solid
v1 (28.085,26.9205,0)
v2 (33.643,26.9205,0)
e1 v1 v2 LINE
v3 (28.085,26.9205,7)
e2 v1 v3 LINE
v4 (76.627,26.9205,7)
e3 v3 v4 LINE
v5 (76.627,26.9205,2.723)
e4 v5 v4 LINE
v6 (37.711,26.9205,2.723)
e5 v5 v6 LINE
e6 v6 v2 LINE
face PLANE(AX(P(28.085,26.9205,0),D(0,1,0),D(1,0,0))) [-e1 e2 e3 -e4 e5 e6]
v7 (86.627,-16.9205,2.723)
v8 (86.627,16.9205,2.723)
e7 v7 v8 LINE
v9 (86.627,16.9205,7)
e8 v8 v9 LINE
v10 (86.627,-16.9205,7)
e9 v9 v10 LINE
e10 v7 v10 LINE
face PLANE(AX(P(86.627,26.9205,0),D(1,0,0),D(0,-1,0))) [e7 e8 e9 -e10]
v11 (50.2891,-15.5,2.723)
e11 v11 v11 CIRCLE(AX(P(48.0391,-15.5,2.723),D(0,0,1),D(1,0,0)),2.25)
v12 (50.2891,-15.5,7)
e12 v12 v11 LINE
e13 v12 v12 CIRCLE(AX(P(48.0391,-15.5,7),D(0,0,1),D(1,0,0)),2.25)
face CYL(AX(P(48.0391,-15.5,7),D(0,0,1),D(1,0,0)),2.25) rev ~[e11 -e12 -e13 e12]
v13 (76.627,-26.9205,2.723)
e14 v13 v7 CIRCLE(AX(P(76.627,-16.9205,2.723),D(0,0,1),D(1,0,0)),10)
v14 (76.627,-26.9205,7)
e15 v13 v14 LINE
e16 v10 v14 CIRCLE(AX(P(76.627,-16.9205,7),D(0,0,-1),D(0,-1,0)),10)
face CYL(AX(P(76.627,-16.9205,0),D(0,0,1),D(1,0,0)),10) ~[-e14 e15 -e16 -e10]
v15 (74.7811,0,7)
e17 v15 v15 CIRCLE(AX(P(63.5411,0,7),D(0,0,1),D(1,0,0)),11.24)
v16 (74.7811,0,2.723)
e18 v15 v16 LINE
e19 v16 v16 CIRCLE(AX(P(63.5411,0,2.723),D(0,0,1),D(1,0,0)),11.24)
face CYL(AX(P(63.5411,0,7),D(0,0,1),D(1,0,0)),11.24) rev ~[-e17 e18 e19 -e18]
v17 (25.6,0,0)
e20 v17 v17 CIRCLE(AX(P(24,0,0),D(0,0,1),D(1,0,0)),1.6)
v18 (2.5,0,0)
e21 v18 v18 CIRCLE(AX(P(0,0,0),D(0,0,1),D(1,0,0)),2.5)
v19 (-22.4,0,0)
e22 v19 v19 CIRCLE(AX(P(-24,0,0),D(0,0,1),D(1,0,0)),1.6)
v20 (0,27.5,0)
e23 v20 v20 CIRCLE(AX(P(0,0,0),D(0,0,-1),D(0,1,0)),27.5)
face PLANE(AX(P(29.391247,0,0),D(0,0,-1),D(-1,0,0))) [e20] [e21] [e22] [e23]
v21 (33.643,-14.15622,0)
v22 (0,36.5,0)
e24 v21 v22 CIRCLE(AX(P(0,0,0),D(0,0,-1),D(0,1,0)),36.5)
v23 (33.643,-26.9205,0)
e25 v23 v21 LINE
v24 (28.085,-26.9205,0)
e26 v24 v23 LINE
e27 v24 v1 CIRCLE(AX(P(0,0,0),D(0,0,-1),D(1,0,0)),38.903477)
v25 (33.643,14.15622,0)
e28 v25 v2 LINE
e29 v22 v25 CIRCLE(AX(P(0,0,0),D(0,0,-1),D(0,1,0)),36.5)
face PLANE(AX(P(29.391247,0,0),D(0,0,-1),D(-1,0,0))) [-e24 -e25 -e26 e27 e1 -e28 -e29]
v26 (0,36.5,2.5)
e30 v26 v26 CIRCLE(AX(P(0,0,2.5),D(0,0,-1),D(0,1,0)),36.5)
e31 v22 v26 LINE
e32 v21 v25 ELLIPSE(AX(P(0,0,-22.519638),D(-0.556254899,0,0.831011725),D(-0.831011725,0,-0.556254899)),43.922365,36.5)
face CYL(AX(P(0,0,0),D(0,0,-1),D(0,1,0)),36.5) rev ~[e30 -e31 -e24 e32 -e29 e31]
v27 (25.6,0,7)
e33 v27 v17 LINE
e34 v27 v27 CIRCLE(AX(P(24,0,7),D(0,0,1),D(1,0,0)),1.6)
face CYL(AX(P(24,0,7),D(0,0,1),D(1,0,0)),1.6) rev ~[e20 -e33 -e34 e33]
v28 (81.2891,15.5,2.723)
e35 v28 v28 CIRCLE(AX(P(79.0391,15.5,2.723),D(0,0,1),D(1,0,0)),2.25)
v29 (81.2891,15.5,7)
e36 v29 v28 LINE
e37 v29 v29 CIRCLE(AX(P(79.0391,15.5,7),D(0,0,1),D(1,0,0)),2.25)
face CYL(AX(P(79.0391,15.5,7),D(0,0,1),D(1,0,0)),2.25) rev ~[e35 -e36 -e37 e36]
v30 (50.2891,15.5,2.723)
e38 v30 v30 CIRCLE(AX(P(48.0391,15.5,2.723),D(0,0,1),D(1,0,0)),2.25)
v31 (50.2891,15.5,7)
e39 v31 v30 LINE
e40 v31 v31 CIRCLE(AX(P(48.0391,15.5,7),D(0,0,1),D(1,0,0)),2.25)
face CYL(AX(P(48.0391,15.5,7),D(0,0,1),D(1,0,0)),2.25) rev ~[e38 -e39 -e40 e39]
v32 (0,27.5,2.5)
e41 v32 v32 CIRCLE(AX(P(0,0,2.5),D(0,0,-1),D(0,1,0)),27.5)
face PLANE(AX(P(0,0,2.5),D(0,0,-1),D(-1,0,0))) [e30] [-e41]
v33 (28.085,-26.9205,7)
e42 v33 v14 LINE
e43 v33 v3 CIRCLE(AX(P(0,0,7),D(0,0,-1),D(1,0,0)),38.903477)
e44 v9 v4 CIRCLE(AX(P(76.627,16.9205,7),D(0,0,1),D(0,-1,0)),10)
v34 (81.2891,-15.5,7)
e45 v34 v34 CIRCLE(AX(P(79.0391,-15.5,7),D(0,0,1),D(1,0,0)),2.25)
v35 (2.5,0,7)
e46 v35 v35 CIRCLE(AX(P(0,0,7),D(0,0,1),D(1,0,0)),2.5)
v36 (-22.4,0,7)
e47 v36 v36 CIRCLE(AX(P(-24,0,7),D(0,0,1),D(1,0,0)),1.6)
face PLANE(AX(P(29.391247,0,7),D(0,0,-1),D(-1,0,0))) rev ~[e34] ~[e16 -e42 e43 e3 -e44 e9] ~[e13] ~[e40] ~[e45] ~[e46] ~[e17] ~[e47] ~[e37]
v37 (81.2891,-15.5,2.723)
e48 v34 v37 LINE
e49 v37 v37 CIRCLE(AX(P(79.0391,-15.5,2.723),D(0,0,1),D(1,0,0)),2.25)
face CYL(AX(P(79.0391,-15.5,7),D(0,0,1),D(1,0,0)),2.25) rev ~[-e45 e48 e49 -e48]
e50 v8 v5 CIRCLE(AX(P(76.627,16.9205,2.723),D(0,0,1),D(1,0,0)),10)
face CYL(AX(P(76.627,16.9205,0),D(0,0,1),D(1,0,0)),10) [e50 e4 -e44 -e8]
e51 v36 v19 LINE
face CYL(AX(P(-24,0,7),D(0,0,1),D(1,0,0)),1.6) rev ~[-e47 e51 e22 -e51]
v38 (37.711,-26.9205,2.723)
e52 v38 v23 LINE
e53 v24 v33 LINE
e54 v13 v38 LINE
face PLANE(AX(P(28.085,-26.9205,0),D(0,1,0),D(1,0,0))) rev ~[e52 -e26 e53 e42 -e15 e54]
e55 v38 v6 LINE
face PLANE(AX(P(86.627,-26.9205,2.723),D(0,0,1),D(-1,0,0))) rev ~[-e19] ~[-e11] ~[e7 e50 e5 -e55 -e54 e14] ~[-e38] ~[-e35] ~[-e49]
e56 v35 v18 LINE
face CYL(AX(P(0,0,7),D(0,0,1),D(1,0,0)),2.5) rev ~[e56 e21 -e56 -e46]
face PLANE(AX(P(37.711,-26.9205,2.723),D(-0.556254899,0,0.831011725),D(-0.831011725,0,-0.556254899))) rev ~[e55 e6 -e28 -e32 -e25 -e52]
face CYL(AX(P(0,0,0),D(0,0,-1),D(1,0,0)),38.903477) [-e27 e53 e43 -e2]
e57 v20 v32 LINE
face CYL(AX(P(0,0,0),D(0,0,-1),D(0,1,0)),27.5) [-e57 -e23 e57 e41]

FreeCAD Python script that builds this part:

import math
import FreeCAD as App
import Part
import Sketcher

V = App.Vector
Q = App.Units.Quantity


def edges_at(feature, points):
    """Names of the edges that pass closest to the given points."""
    edges = feature.Shape.Edges
    near = lambda p: min(range(len(edges)), key=lambda i: edges[i].distToShape(Part.Vertex(*p))[0])
    return sorted({f"Edge{near(p) + 1}" for p in points})

doc = App.newDocument("Part")
params = doc.addObject("Spreadsheet::Sheet", "Params")
for row, (alias, value) in enumerate([
    ("pad1_length", "7 mm"),
    ("fillet_radius", "10 mm"),
    ("sketch2_diameter", "5 mm"),
    ("sketch2_diameter2", "3.2 mm"),
    ("sketch2_diameter3", "4.5 mm"),
    ("sketch2_diameter4", "22.48 mm"),
    ("sketch4_diameter", "73 mm"),
    ("sketch4_diameter2", "55 mm"),
    ("pocket3_length", "2.5 mm"),
], start=1):
    params.set(f"A{row}", alias)
    params.set(f"B{row}", "=" + value)
    params.setAlias(f"B{row}", alias)

body = doc.addObject("PartDesign::Body", "Body")

# Sketch on XY plane
sketch1 = body.newObject("Sketcher::SketchObject", "Sketch")
sketch1.AttachmentSupport = (doc.getObject("XY_Plane"), [""])
sketch1.MapMode = "FlatFace"
sketch1.addGeometry([
    Part.LineSegment(V(87, -27, 0), V(87, 27, 0)),
    Part.LineSegment(V(87, 27, 0), V(28, 27, 0)),
    Part.ArcOfCircle(Part.Circle(V(0, 0, 0), V(0, 0, 1), 39), math.radians(44), math.radians(316)),
    Part.LineSegment(V(28, -27, 0), V(87, -27, 0)),
], False)
sketch1.addConstraint([
    Sketcher.Constraint("Coincident", 0, 2, 1, 1),
    Sketcher.Constraint("Coincident", 1, 2, 2, 1),
    Sketcher.Constraint("Coincident", 2, 2, 3, 1),
    Sketcher.Constraint("Coincident", 3, 2, 0, 1),
    Sketcher.Constraint("Vertical", 0),
    Sketcher.Constraint("Horizontal", 1),
    Sketcher.Constraint("Horizontal", 3),
    Sketcher.Constraint("Coincident", 2, 3, -1, 1),
    Sketcher.Constraint("Vertical", 1, 2, 2, 2),
    Sketcher.Constraint("Radius", 2, Q("38.9035 mm")),
    Sketcher.Constraint("DistanceX", 1, 2, 1, 1, Q("58.542 mm")),
    Sketcher.Constraint("DistanceY", 0, 1, 0, 2, Q("53.841 mm")),
])
pad1 = body.newObject("PartDesign::Pad", "Pad")
pad1.Profile = sketch1
pad1.setExpression("Length", "Params.pad1_length")
doc.recompute()

fillet = body.newObject("PartDesign::Fillet", "Fillet")
fillet.Base = (pad1, edges_at(pad1, [(86.627, 26.921, 3.5), (86.627, -26.921, 3.5)]))
fillet.setExpression("Radius", "Params.fillet_radius")

# Sketch on XY plane
sketch2 = body.newObject("Sketcher::SketchObject", "Sketch001")
sketch2.AttachmentSupport = (doc.getObject("XY_Plane"), [""])
sketch2.MapMode = "FlatFace"
sketch2.AttachmentOffset = App.Placement(V(0, 0, 7), App.Rotation())
sketch2.addGeometry([
    Part.Circle(V(-24, 0, 0), V(0, 0, 1), 1.6),  # 0
    Part.Circle(V(0, 0, 0), V(0, 0, 1), 2.5),  # 1
    Part.Circle(V(24, 0, 0), V(0, 0, 1), 1.6),  # 2
    Part.Circle(V(48, 15.5, 0), V(0, 0, 1), 2.2),  # 3
    Part.Circle(V(48, -15.5, 0), V(0, 0, 1), 2.2),  # 4
    Part.Circle(V(63.5, 0, 0), V(0, 0, 1), 11.2),  # 5
    Part.Circle(V(79, -15.5, 0), V(0, 0, 1), 2.2),  # 6
    Part.Circle(V(79, 15.5, 0), V(0, 0, 1), 2.2),  # 7
], False)
sketch2.addConstraint([
    Sketcher.Constraint("Coincident", 1, 3, -1, 1),
    Sketcher.Constraint("Equal", 0, 2),
    Sketcher.Constraint("Equal", 3, 4),
    Sketcher.Constraint("Equal", 4, 6),
    Sketcher.Constraint("Equal", 6, 7),
    Sketcher.Constraint("Symmetric", 0, 3, 2, 3, -1, 1),
    Sketcher.Constraint("Symmetric", 3, 3, 4, 3, -1),
    Sketcher.Constraint("Symmetric", 6, 3, 7, 3, -1),
    Sketcher.Constraint("PointOnObject", 0, 3, -1),
    Sketcher.Constraint("PointOnObject", 5, 3, -1),
    Sketcher.Constraint("Horizontal", 4, 3, 6, 3),
    Sketcher.Constraint("Diameter", 1, Q("5 mm")),
    Sketcher.Constraint("Diameter", 0, Q("3.2 mm")),
    Sketcher.Constraint("Diameter", 3, Q("4.5 mm")),
    Sketcher.Constraint("Diameter", 5, Q("22.48 mm")),
    Sketcher.Constraint("DistanceX", 0, 3, -1, 1, Q("24 mm")),
    Sketcher.Constraint("DistanceY", 4, 3, 3, 3, Q("31 mm")),
    Sketcher.Constraint("DistanceX", 4, 3, 6, 3, Q("31 mm")),
    Sketcher.Constraint("DistanceX", -1, 1, 3, 3, Q("48.039 mm")),
    Sketcher.Constraint("DistanceX", -1, 1, 5, 3, Q("63.541 mm")),
])
sketch2.setExpression("Constraints[11]", "Params.sketch2_diameter")
sketch2.setExpression("Constraints[12]", "Params.sketch2_diameter2")
sketch2.setExpression("Constraints[13]", "Params.sketch2_diameter3")
sketch2.setExpression("Constraints[14]", "Params.sketch2_diameter4")
pocket1 = body.newObject("PartDesign::Pocket", "Pocket")
pocket1.Profile = sketch2
pocket1.Type = "UpToFirst"

# Sketch on XZ plane
sketch3 = body.newObject("Sketcher::SketchObject", "Sketch002")
sketch3.AttachmentSupport = (doc.getObject("XZ_Plane"), [""])
sketch3.MapMode = "FlatFace"
sketch3.AttachmentOffset = App.Placement(V(0, 0, 26.9205), App.Rotation())
sketch3.addGeometry([
    Part.LineSegment(V(86.6, 0, 0), V(86.6, 2.7, 0)),
    Part.LineSegment(V(86.6, 2.7, 0), V(37.7, 2.7, 0)),
    Part.LineSegment(V(37.7, 2.7, 0), V(33.6, 0, 0)),
    Part.LineSegment(V(33.6, 0, 0), V(86.6, 0, 0)),
], False)
sketch3.addConstraint([
    Sketcher.Constraint("Coincident", 0, 2, 1, 1),
    Sketcher.Constraint("Coincident", 1, 2, 2, 1),
    Sketcher.Constraint("Coincident", 2, 2, 3, 1),
    Sketcher.Constraint("Coincident", 3, 2, 0, 1),
    Sketcher.Constraint("Vertical", 0),
    Sketcher.Constraint("Horizontal", 1),
    Sketcher.Constraint("Horizontal", 3),
    Sketcher.Constraint("PointOnObject", 2, 2, -1),
    Sketcher.Constraint("DistanceX", 1, 2, 1, 1, Q("48.916 mm")),
    Sketcher.Constraint("DistanceX", 3, 1, 3, 2, Q("52.984 mm")),
    Sketcher.Constraint("DistanceY", 0, 1, 0, 2, Q("2.723 mm")),
    Sketcher.Constraint("DistanceX", -1, 1, 0, 2, Q("86.627 mm")),
])
pocket2 = body.newObject("PartDesign::Pocket", "Pocket001")
pocket2.Profile = sketch3
pocket2.Type = "UpToFirst"

# Sketch on XY plane
sketch4 = body.newObject("Sketcher::SketchObject", "Sketch003")
sketch4.AttachmentSupport = (doc.getObject("XY_Plane"), [""])
sketch4.MapMode = "FlatFace"
sketch4.addGeometry([
    Part.Circle(V(0, 0, 0), V(0, 0, 1), 36),
    Part.Circle(V(0, 0, 0), V(0, 0, 1), 28),
], False)
sketch4.addConstraint([
    Sketcher.Constraint("Coincident", 0, 3, -1, 1),
    Sketcher.Constraint("Coincident", 1, 3, -1, 1),
    Sketcher.Constraint("Diameter", 0, Q("73 mm")),
    Sketcher.Constraint("Diameter", 1, Q("55 mm")),
])
sketch4.setExpression("Constraints[2]", "Params.sketch4_diameter")
sketch4.setExpression("Constraints[3]", "Params.sketch4_diameter2")
pocket3 = body.newObject("PartDesign::Pocket", "Pocket002")
pocket3.Profile = sketch4
pocket3.setExpression("Length", "Params.pocket3_length")
pocket3.Reversed = True

doc.recompute()
